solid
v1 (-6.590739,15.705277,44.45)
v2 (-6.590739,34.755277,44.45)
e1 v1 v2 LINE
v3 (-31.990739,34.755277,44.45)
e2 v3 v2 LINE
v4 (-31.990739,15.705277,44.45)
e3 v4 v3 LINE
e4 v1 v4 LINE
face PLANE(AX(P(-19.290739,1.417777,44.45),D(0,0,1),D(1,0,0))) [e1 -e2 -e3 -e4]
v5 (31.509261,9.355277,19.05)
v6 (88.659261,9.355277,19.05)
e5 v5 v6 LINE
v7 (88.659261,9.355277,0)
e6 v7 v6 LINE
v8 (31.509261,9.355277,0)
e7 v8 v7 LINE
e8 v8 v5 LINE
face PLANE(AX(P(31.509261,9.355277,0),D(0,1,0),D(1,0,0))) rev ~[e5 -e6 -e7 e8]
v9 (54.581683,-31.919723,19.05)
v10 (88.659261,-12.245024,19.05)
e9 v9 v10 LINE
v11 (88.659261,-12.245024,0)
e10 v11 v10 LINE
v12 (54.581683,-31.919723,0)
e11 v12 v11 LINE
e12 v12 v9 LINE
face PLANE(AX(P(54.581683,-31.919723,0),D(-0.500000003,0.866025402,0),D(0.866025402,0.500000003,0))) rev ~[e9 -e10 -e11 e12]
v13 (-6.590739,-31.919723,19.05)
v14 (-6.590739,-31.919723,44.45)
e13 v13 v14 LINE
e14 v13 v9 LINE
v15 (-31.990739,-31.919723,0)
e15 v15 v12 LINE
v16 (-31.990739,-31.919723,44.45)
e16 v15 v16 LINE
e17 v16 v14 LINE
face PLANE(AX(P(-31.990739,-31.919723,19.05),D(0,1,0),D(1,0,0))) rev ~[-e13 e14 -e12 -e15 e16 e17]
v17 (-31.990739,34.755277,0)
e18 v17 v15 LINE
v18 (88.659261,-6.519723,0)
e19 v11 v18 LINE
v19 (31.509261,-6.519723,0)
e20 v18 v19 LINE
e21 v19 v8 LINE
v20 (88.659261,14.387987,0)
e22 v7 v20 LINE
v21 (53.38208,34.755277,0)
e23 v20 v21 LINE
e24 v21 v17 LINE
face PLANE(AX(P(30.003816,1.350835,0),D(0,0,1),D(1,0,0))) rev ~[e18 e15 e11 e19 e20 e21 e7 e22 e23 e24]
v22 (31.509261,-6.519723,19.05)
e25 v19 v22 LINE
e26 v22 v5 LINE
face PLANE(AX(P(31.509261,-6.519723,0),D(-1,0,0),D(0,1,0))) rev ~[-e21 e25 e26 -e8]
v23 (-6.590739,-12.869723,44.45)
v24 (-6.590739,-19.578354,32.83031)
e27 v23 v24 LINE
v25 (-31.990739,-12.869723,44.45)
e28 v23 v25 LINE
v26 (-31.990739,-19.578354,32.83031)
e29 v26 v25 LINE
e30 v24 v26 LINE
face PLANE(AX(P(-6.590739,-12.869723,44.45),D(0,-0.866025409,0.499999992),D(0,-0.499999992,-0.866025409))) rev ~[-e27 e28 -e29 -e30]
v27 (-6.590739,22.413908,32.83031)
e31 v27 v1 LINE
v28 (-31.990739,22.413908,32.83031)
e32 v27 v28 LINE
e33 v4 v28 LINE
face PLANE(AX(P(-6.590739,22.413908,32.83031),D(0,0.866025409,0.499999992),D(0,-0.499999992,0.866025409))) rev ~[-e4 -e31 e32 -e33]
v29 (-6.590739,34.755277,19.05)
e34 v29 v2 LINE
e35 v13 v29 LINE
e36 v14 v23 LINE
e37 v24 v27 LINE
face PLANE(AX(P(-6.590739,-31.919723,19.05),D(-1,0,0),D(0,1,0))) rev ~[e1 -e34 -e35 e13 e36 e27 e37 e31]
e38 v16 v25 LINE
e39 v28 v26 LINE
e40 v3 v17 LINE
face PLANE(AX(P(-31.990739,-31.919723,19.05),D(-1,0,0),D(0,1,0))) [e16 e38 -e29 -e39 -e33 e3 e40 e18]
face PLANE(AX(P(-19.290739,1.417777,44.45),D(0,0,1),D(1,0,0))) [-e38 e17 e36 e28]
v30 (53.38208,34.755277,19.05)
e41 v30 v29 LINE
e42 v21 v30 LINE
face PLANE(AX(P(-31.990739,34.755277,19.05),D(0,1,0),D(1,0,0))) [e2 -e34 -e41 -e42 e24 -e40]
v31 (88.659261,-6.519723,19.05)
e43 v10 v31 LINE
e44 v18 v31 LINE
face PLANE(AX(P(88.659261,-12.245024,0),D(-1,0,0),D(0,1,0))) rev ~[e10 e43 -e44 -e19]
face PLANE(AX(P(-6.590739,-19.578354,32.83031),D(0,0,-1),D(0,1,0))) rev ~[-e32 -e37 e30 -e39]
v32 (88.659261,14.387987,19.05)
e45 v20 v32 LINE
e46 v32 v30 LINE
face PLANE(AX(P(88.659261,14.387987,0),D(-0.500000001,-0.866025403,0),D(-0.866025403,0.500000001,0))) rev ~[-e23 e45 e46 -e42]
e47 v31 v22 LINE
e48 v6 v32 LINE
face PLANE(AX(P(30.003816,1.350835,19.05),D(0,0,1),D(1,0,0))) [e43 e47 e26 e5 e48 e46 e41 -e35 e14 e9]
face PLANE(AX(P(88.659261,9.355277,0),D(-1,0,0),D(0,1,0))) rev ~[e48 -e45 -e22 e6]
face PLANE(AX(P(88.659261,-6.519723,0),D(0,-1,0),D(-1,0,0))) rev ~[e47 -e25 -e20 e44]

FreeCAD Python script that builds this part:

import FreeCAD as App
import Part
import Sketcher
from FreeCAD import Vector
Q = App.Units.Quantity


def add_polygon(sketch, points):
    """Adds a closed chain of lines whose ends are joined by coincident constraints."""
    first, n = sketch.GeometryCount, len(points)
    for a, b in zip(points, points[1:] + points[:1]):
        sketch.addGeometry(Part.LineSegment(App.Vector(*a, 0), App.Vector(*b, 0)), False)
    for i in range(n):
        sketch.addConstraint(Sketcher.Constraint("Coincident", first + i, 2, first + (i + 1) % n, 1))

doc = App.newDocument("Part")
body = doc.addObject("PartDesign::Body", "Body")

# Sketch on XY plane
sketch1 = body.newObject("Sketcher::SketchObject", "Sketch")
sketch1.AttachmentSupport = (doc.getObject("XY_Plane"), [""])
sketch1.MapMode = "FlatFace"
add_polygon(sketch1, [(53, 35), (-32, 35), (-32, -32), (55, -32), (89, -12), (89, -7), (32, -7), (32, 9), (89, 9), (89, 14)])  # lines 0-9
sketch1.addConstraint(Sketcher.Constraint("Horizontal", 0))
sketch1.addConstraint(Sketcher.Constraint("Vertical", 1))
sketch1.addConstraint(Sketcher.Constraint("Horizontal", 2))
sketch1.addConstraint(Sketcher.Constraint("Vertical", 4))
sketch1.addConstraint(Sketcher.Constraint("Horizontal", 5))
sketch1.addConstraint(Sketcher.Constraint("Vertical", 6))
sketch1.addConstraint(Sketcher.Constraint("Horizontal", 7))
sketch1.addConstraint(Sketcher.Constraint("Vertical", 8))
sketch1.addConstraint(Sketcher.Constraint("Vertical", 4, 2, 7, 2))
sketch1.addConstraint(Sketcher.Constraint("Angle", 3, Q("30 deg")))
sketch1.addConstraint(Sketcher.Constraint("Angle", 9, Q("150 deg")))
sketch1.addConstraint(Sketcher.Constraint("DistanceY", 2, 2, 4, 2, Q("1 in")))
sketch1.addConstraint(Sketcher.Constraint("DistanceY", 6, 2, 0, 2, Q("1 in")))
sketch1.addConstraint(Sketcher.Constraint("DistanceX", 5, 2, 5, 1, Q("2.25 in")))
sketch1.addConstraint(Sketcher.Constraint("DistanceX", 1, 2, 5, 2, Q("2.5 in")))
sketch1.addConstraint(Sketcher.Constraint("DistanceY", 1, 2, 1, 1, Q("2.625 in")))
sketch1.addConstraint(Sketcher.Constraint("DistanceY", 4, 1, 4, 2, Q("5.725301 mm")))
sketch1.addConstraint(Sketcher.Constraint("DistanceX", 0, 2, 0, 1, Q("85.372819 mm")))
sketch1.addConstraint(Sketcher.Constraint("DistanceX", 0, 2, -1, 1, Q("31.990739 mm")))
sketch1.addConstraint(Sketcher.Constraint("DistanceY", -1, 1, 0, 2, Q("34.755277 mm")))
pad1 = body.newObject("PartDesign::Pad", "Pad")
pad1.Profile = sketch1
pad1.Length = Q("0.75 in")

# Sketch on XY plane
sketch2 = body.newObject("Sketcher::SketchObject", "Sketch001")
sketch2.AttachmentSupport = (doc.getObject("XY_Plane"), [""])
sketch2.MapMode = "FlatFace"
sketch2.AttachmentOffset = App.Placement(Vector(0, 0, 0.75 * 25.4), App.Rotation())
add_polygon(sketch2, [(-32, 35), (-32, -32), (-7, -32), (-7, 35)])  # lines 0-3
sketch2.addConstraint(Sketcher.Constraint("Vertical", 0))
sketch2.addConstraint(Sketcher.Constraint("Horizontal", 1))
sketch2.addConstraint(Sketcher.Constraint("Vertical", 2))
sketch2.addConstraint(Sketcher.Constraint("Horizontal", 3))
sketch2.addConstraint(Sketcher.Constraint("DistanceX", 1, 1, 1, 2, Q("1 in")))
sketch2.addConstraint(Sketcher.Constraint("DistanceY", 0, 2, 0, 1, Q("2.625 in")))
sketch2.addConstraint(Sketcher.Constraint("DistanceX", 0, 2, -1, 1, Q("31.990739 mm")))
sketch2.addConstraint(Sketcher.Constraint("DistanceY", 0, 2, -1, 1, Q("31.919723 mm")))
pad2 = body.newObject("PartDesign::Pad", "Pad001")
pad2.Profile = sketch2
pad2.Length = Q("1 in")

# Sketch on YZ plane
sketch3 = body.newObject("Sketcher::SketchObject", "Sketch002")
sketch3.AttachmentSupport = (doc.getObject("YZ_Plane"), [""])
sketch3.MapMode = "FlatFace"
sketch3.AttachmentOffset = App.Placement(Vector(0, 0, -6.590739), App.Rotation())
add_polygon(sketch3, [(16, 44), (-13, 44), (-20, 33), (22, 33)])  # lines 0-3
sketch3.addConstraint(Sketcher.Constraint("Horizontal", 0))
sketch3.addConstraint(Sketcher.Constraint("Horizontal", 2))
sketch3.addConstraint(Sketcher.Constraint("Equal", 1, 3))
sketch3.addConstraint(Sketcher.Constraint("Angle", 1, Q("-119.999999 deg")))
sketch3.addConstraint(Sketcher.Constraint("DistanceX", 0, 2, 0, 1, Q("1.125 in")))
sketch3.addConstraint(Sketcher.Constraint("DistanceY", -1, 1, 0, 2, Q("1.75 in")))
sketch3.addConstraint(Sketcher.Constraint("DistanceX", 2, 1, 2, 2, Q("41.992262 mm")))
sketch3.addConstraint(Sketcher.Constraint("DistanceX", 0, 2, -1, 1, Q("12.869723 mm")))
pocket1 = body.newObject("PartDesign::Pocket", "Pocket")
pocket1.Profile = sketch3
pocket1.Length = Q("1.27 in")

doc.recompute()
